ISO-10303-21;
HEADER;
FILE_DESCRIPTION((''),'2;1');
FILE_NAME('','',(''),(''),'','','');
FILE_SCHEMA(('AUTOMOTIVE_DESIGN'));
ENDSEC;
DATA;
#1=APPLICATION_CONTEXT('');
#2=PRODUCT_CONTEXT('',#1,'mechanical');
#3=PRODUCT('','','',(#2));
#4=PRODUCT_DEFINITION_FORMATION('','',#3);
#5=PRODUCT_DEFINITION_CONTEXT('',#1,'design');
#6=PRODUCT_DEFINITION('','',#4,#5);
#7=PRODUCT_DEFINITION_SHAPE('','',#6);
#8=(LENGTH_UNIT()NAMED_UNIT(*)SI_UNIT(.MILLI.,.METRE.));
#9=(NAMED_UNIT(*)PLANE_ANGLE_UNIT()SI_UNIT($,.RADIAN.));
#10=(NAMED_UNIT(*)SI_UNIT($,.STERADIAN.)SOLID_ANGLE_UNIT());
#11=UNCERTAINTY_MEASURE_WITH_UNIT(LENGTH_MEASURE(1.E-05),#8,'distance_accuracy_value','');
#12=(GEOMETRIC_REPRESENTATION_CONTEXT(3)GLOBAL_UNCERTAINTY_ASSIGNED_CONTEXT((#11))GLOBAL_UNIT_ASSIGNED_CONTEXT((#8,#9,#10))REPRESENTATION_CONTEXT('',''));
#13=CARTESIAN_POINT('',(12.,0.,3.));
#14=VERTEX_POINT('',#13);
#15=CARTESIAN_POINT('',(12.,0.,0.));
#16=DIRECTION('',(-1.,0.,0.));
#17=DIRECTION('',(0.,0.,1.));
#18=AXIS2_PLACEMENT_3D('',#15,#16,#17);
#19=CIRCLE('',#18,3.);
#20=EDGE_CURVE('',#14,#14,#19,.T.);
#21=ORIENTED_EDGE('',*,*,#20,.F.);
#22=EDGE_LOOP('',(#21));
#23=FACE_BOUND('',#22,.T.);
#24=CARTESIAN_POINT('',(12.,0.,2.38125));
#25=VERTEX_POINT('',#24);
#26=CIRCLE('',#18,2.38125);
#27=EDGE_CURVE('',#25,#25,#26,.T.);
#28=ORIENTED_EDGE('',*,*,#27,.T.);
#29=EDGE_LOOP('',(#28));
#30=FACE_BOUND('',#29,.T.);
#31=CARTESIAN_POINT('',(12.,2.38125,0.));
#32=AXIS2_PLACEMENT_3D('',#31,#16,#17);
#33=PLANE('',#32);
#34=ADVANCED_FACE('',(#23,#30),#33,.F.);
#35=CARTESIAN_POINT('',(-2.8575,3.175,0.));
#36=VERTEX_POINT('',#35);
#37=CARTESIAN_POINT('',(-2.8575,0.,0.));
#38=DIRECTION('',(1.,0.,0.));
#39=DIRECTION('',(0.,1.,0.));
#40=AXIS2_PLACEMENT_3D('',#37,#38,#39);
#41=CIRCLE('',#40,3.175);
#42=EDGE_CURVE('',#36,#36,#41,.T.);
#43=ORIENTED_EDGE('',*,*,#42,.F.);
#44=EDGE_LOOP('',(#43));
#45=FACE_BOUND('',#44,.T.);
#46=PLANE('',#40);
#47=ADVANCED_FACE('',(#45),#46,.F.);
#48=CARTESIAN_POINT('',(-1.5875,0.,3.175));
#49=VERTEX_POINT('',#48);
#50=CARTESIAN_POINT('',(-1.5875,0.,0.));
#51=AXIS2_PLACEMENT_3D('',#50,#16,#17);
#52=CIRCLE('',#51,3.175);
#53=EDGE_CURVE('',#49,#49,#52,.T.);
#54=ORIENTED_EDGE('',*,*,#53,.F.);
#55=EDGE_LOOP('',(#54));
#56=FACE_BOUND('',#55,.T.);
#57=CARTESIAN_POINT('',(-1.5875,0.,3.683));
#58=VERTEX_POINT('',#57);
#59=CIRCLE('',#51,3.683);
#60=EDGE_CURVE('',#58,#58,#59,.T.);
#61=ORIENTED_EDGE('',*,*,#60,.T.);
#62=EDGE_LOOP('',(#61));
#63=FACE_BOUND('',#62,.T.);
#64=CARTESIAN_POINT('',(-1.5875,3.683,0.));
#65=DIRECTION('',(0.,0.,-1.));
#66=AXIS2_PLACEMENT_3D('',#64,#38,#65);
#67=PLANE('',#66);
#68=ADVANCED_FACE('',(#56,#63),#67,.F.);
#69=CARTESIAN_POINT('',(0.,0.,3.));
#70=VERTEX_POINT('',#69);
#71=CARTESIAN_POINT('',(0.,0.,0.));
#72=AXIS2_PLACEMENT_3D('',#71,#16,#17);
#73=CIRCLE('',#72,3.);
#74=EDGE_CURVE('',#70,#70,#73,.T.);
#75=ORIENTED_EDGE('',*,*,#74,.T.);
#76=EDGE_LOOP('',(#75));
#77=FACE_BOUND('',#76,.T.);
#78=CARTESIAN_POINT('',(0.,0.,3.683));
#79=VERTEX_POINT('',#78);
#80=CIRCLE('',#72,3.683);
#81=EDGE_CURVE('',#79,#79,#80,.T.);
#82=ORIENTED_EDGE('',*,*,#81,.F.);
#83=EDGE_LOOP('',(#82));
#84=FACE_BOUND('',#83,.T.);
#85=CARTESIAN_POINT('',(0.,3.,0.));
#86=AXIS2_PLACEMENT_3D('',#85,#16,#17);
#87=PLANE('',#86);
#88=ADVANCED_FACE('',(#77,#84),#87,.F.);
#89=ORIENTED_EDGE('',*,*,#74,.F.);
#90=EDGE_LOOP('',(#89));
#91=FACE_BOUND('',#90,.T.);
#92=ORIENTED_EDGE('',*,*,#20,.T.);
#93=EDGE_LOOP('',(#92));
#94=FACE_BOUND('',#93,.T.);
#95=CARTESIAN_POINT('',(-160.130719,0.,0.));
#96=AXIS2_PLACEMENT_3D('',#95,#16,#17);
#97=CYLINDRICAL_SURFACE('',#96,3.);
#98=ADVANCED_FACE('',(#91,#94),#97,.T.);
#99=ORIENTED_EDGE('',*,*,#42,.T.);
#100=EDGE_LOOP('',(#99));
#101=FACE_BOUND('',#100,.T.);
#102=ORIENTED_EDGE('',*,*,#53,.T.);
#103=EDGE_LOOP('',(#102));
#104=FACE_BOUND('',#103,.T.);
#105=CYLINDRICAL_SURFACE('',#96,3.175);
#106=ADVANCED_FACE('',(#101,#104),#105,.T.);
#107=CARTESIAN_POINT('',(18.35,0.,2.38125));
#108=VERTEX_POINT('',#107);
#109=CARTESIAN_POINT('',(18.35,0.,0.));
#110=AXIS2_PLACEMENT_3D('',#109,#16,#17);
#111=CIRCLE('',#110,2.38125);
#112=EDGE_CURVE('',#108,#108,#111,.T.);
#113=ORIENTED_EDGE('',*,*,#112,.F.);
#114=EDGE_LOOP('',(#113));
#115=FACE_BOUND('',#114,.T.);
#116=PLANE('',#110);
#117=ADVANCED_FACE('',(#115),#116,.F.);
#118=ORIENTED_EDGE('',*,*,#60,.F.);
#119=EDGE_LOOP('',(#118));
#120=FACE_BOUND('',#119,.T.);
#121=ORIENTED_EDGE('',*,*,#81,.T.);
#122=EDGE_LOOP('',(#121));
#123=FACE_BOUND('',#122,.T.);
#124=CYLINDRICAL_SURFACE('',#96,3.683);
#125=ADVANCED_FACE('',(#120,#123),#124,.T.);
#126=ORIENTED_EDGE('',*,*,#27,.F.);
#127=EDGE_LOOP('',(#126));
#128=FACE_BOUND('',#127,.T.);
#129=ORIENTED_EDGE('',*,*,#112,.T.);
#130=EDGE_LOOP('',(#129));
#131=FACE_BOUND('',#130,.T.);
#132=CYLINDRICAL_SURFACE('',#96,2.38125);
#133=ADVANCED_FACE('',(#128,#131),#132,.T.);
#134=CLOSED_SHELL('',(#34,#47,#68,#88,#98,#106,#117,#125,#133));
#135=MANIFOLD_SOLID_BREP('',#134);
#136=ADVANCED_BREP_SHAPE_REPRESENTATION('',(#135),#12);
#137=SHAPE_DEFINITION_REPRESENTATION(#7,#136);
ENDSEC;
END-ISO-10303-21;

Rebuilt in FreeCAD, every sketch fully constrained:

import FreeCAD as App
import Part
import Sketcher
from FreeCAD import Vector
Q = App.Units.Quantity

doc = App.newDocument("Part")
body = doc.addObject("PartDesign::Body", "Body")

# Sketch on XY plane
sketch1 = body.newObject("Sketcher::SketchObject", "Sketch")
sketch1.AttachmentSupport = (doc.getObject("XY_Plane"), [""])
sketch1.MapMode = "FlatFace"
sketch1.addGeometry(Part.LineSegment(Vector(-6.3, 0, 0), Vector(18.4, 0, 0)), False)
sketch1.addGeometry(Part.LineSegment(Vector(18.4, 0, 0), Vector(18.4, 2.4, 0)), False)
sketch1.addGeometry(Part.LineSegment(Vector(18.4, 2.4, 0), Vector(12, 2.4, 0)), False)
sketch1.addGeometry(Part.LineSegment(Vector(12, 2.4, 0), Vector(12, 3, 0)), False)
sketch1.addGeometry(Part.LineSegment(Vector(12, 3, 0), Vector(0, 3, 0)), False)
sketch1.addGeometry(Part.LineSegment(Vector(0, 3, 0), Vector(0, 3.7, 0)), False)
sketch1.addGeometry(Part.LineSegment(Vector(0, 3.7, 0), Vector(-1.6, 3.7, 0)), False)
sketch1.addGeometry(Part.LineSegment(Vector(-1.6, 3.7, 0), Vector(-1.6, 3.2, 0)), False)
sketch1.addGeometry(Part.LineSegment(Vector(-1.6, 3.2, 0), Vector(-6.3, 3.2, 0)), False)
sketch1.addGeometry(Part.LineSegment(Vector(-6.3, 3.2, 0), Vector(-6.3, 0, 0)), False)
sketch1.addConstraint(Sketcher.Constraint("Coincident", 0, 2, 1, 1))
sketch1.addConstraint(Sketcher.Constraint("Coincident", 1, 2, 2, 1))
sketch1.addConstraint(Sketcher.Constraint("Coincident", 2, 2, 3, 1))
sketch1.addConstraint(Sketcher.Constraint("Coincident", 3, 2, 4, 1))
sketch1.addConstraint(Sketcher.Constraint("Coincident", 4, 2, 5, 1))
sketch1.addConstraint(Sketcher.Constraint("Coincident", 5, 2, 6, 1))
sketch1.addConstraint(Sketcher.Constraint("Coincident", 6, 2, 7, 1))
sketch1.addConstraint(Sketcher.Constraint("Coincident", 7, 2, 8, 1))
sketch1.addConstraint(Sketcher.Constraint("Coincident", 8, 2, 9, 1))
sketch1.addConstraint(Sketcher.Constraint("Coincident", 9, 2, 0, 1))
sketch1.addConstraint(Sketcher.Constraint("Horizontal", 0))
sketch1.addConstraint(Sketcher.Constraint("Vertical", 1))
sketch1.addConstraint(Sketcher.Constraint("Horizontal", 2))
sketch1.addConstraint(Sketcher.Constraint("Vertical", 3))
sketch1.addConstraint(Sketcher.Constraint("Horizontal", 4))
sketch1.addConstraint(Sketcher.Constraint("Vertical", 5))
sketch1.addConstraint(Sketcher.Constraint("Horizontal", 6))
sketch1.addConstraint(Sketcher.Constraint("Vertical", 7))
sketch1.addConstraint(Sketcher.Constraint("Horizontal", 8))
sketch1.addConstraint(Sketcher.Constraint("Vertical", 9))
sketch1.addConstraint(Sketcher.Constraint("PointOnObject", 0, 2, -1))
sketch1.addConstraint(Sketcher.Constraint("PointOnObject", 4, 2, -2))
sketch1.addConstraint(Sketcher.Constraint("DistanceX", 2, 2, 2, 1, Q("0.25 in")))
sketch1.addConstraint(Sketcher.Constraint("DistanceY", 7, 2, 7, 1, Q("0.02 in")))
sketch1.addConstraint(Sketcher.Constraint("DistanceX", 6, 2, 6, 1, Q("0.0625 in")))
sketch1.addConstraint(Sketcher.Constraint("DistanceX", 8, 2, 8, 1, Q("0.1875 in")))
sketch1.addConstraint(Sketcher.Constraint("DistanceY", 1, 1, 1, 2, Q("0.09375 in")))
sketch1.addConstraint(Sketcher.Constraint("DistanceY", 9, 2, 9, 1, Q("0.125 in")))
sketch1.addConstraint(Sketcher.Constraint("DistanceX", 0, 1, 0, 2, Q("24.7 mm")))
sketch1.addConstraint(Sketcher.Constraint("DistanceY", 5, 1, 5, 2, Q("0.683 mm")))
revolution = body.newObject("PartDesign::Revolution", "Revolution")
revolution.Profile = sketch1
revolution.ReferenceAxis = (sketch1, ["H_Axis"])
revolution.Angle = 360

# Sketch on YZ plane
sketch2 = body.newObject("Sketcher::SketchObject", "Sketch001")
sketch2.AttachmentSupport = (doc.getObject("YZ_Plane"), [""])
sketch2.MapMode = "FlatFace"
sketch2.AttachmentOffset = App.Placement(Vector(0, 0, -0.1125 * 25.4), App.Rotation())
sketch2.addGeometry(Part.Circle(Vector(0, 0, 0), Vector(0, 0, 1), 6), False)
sketch2.addConstraint(Sketcher.Constraint("Coincident", 0, 3, -1, 1))
sketch2.addConstraint(Sketcher.Constraint("Diameter", 0, Q("0.5 in")))
pocket1 = body.newObject("PartDesign::Pocket", "Pocket")
pocket1.Profile = sketch2
pocket1.Type = "ThroughAll"

doc.recompute()
